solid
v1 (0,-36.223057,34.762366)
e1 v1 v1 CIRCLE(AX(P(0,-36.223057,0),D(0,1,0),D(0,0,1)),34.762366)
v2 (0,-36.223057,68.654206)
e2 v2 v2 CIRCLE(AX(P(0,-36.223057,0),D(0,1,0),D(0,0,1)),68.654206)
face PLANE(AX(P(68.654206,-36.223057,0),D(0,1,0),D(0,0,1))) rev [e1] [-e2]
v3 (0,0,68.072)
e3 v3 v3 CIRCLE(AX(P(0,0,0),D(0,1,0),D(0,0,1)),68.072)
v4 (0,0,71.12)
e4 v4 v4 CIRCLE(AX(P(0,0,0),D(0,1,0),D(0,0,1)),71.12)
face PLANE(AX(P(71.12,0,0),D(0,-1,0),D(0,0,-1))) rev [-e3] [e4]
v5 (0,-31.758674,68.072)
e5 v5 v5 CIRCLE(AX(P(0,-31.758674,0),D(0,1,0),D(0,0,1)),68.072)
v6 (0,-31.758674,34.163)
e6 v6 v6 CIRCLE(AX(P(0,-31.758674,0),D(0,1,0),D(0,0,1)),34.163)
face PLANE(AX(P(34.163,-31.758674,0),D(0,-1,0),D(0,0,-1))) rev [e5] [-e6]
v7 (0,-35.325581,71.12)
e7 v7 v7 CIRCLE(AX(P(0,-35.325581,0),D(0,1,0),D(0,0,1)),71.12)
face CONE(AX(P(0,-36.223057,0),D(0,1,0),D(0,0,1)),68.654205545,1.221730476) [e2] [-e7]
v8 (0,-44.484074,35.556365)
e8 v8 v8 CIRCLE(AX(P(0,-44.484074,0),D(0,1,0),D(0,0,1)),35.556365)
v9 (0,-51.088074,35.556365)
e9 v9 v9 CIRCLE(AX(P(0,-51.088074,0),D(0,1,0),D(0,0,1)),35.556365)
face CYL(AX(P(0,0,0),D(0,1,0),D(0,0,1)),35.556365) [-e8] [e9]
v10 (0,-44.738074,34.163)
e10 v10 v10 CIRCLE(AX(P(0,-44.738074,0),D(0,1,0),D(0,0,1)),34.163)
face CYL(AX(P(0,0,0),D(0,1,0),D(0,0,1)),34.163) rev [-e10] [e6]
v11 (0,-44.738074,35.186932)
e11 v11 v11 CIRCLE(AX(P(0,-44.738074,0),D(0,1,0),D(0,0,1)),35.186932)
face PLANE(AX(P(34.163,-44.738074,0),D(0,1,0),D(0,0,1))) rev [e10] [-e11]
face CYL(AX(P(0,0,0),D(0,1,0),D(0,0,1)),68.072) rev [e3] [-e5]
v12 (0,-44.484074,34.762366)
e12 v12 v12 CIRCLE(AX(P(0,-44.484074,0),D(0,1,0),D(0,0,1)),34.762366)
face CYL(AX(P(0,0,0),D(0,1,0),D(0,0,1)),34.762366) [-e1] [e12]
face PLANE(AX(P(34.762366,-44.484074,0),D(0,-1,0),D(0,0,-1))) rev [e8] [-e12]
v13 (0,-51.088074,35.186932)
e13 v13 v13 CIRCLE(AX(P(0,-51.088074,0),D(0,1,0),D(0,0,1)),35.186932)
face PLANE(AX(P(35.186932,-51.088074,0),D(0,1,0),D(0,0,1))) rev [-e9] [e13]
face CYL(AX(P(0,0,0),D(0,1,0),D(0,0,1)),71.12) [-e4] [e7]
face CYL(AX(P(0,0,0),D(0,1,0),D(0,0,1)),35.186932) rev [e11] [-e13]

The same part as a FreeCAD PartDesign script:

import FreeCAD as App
import Part
import Sketcher

V = App.Vector
Q = App.Units.Quantity

doc = App.newDocument("Part")
body = doc.addObject("PartDesign::Body", "Body")

sketch1 = body.newObject("Sketcher::SketchObject", "Sketch")
sketch1.AttachmentSupport = (doc.getObject("XY_Plane"), [""])
sketch1.MapMode = "FlatFace"
sketch1.addGeometry([
    Part.LineSegment(V(34.163, -31.758674, 0), V(34.163, -44.738074, 0)),
    Part.LineSegment(V(34.163, -44.738074, 0), V(35.186932, -44.738074, 0)),
    Part.LineSegment(V(35.186932, -44.738074, 0), V(35.186932, -51.088074, 0)),
    Part.LineSegment(V(35.186932, -51.088074, 0), V(35.556365, -51.088074, 0)),
    Part.LineSegment(V(35.556365, -51.088074, 0), V(35.556365, -44.484074, 0)),
    Part.LineSegment(V(35.556365, -44.484074, 0), V(34.762366, -44.484074, 0)),
    Part.LineSegment(V(34.762366, -44.484074, 0), V(34.762366, -36.223057, 0)),
    Part.LineSegment(V(34.762366, -36.223057, 0), V(68.654206, -36.223057, 0)),
    Part.LineSegment(V(68.654206, -36.223057, 0), V(71.12, -35.325581, 0)),
    Part.LineSegment(V(71.12, -35.325581, 0), V(71.12, 0, 0)),
    Part.LineSegment(V(71.12, 0, 0), V(68.072, 0, 0)),
    Part.LineSegment(V(68.072, 0, 0), V(68.072, -31.758674, 0)),
    Part.LineSegment(V(68.072, -31.758674, 0), V(34.163, -31.758674, 0)),
], False)
sketch1.addConstraint([
    Sketcher.Constraint("Coincident", 0, 2, 1, 1),
    Sketcher.Constraint("Coincident", 1, 2, 2, 1),
    Sketcher.Constraint("Coincident", 2, 2, 3, 1),
    Sketcher.Constraint("Coincident", 3, 2, 4, 1),
    Sketcher.Constraint("Coincident", 4, 2, 5, 1),
    Sketcher.Constraint("Coincident", 5, 2, 6, 1),
    Sketcher.Constraint("Coincident", 6, 2, 7, 1),
    Sketcher.Constraint("Coincident", 7, 2, 8, 1),
    Sketcher.Constraint("Coincident", 8, 2, 9, 1),
    Sketcher.Constraint("Coincident", 9, 2, 10, 1),
    Sketcher.Constraint("Coincident", 10, 2, 11, 1),
    Sketcher.Constraint("Coincident", 11, 2, 12, 1),
    Sketcher.Constraint("Coincident", 12, 2, 0, 1),
    Sketcher.Constraint("Vertical", 0),
    Sketcher.Constraint("Horizontal", 1),
    Sketcher.Constraint("Vertical", 2),
    Sketcher.Constraint("Horizontal", 3),
    Sketcher.Constraint("Vertical", 4),
    Sketcher.Constraint("Horizontal", 5),
    Sketcher.Constraint("Vertical", 6),
    Sketcher.Constraint("Horizontal", 7),
    Sketcher.Constraint("Vertical", 9),
    Sketcher.Constraint("Horizontal", 10),
    Sketcher.Constraint("Vertical", 11),
    Sketcher.Constraint("Horizontal", 12),
    Sketcher.Constraint("PointOnObject", 9, 2, -1),
    Sketcher.Constraint("Angle", 8, Q("20 deg")),
    Sketcher.Constraint("DistanceX", 10, 2, 10, 1, Q("0.12 in")),
    Sketcher.Constraint("DistanceY", 2, 2, 2, 1, Q("0.25 in")),
    Sketcher.Constraint("DistanceY", 4, 1, 4, 2, Q("0.26 in")),
    Sketcher.Constraint("DistanceX", -1, 1, 8, 2, Q("2.8 in")),
    Sketcher.Constraint("DistanceX", 12, 2, 12, 1, Q("1.335 in")),
    Sketcher.Constraint("DistanceY", 0, 2, 0, 1, Q("0.511 in")),
    Sketcher.Constraint("DistanceX", 5, 2, 5, 1, 0.793999),
    Sketcher.Constraint("DistanceX", 1, 1, 1, 2, 1.023932),
    Sketcher.Constraint("DistanceX", 7, 1, 7, 2, 33.891839),
    Sketcher.Constraint("DistanceY", 9, 1, 9, 2, 35.325581),
    Sketcher.Constraint("DistanceX", 3, 1, 3, 2, 0.369433),
    Sketcher.Constraint("DistanceY", 6, 1, 6, 2, 8.261017),
])
revolution = body.newObject("PartDesign::Revolution", "Revolution")
revolution.Profile = sketch1
revolution.ReferenceAxis = (sketch1, ["V_Axis"])
revolution.Angle = 360

doc.recompute()
